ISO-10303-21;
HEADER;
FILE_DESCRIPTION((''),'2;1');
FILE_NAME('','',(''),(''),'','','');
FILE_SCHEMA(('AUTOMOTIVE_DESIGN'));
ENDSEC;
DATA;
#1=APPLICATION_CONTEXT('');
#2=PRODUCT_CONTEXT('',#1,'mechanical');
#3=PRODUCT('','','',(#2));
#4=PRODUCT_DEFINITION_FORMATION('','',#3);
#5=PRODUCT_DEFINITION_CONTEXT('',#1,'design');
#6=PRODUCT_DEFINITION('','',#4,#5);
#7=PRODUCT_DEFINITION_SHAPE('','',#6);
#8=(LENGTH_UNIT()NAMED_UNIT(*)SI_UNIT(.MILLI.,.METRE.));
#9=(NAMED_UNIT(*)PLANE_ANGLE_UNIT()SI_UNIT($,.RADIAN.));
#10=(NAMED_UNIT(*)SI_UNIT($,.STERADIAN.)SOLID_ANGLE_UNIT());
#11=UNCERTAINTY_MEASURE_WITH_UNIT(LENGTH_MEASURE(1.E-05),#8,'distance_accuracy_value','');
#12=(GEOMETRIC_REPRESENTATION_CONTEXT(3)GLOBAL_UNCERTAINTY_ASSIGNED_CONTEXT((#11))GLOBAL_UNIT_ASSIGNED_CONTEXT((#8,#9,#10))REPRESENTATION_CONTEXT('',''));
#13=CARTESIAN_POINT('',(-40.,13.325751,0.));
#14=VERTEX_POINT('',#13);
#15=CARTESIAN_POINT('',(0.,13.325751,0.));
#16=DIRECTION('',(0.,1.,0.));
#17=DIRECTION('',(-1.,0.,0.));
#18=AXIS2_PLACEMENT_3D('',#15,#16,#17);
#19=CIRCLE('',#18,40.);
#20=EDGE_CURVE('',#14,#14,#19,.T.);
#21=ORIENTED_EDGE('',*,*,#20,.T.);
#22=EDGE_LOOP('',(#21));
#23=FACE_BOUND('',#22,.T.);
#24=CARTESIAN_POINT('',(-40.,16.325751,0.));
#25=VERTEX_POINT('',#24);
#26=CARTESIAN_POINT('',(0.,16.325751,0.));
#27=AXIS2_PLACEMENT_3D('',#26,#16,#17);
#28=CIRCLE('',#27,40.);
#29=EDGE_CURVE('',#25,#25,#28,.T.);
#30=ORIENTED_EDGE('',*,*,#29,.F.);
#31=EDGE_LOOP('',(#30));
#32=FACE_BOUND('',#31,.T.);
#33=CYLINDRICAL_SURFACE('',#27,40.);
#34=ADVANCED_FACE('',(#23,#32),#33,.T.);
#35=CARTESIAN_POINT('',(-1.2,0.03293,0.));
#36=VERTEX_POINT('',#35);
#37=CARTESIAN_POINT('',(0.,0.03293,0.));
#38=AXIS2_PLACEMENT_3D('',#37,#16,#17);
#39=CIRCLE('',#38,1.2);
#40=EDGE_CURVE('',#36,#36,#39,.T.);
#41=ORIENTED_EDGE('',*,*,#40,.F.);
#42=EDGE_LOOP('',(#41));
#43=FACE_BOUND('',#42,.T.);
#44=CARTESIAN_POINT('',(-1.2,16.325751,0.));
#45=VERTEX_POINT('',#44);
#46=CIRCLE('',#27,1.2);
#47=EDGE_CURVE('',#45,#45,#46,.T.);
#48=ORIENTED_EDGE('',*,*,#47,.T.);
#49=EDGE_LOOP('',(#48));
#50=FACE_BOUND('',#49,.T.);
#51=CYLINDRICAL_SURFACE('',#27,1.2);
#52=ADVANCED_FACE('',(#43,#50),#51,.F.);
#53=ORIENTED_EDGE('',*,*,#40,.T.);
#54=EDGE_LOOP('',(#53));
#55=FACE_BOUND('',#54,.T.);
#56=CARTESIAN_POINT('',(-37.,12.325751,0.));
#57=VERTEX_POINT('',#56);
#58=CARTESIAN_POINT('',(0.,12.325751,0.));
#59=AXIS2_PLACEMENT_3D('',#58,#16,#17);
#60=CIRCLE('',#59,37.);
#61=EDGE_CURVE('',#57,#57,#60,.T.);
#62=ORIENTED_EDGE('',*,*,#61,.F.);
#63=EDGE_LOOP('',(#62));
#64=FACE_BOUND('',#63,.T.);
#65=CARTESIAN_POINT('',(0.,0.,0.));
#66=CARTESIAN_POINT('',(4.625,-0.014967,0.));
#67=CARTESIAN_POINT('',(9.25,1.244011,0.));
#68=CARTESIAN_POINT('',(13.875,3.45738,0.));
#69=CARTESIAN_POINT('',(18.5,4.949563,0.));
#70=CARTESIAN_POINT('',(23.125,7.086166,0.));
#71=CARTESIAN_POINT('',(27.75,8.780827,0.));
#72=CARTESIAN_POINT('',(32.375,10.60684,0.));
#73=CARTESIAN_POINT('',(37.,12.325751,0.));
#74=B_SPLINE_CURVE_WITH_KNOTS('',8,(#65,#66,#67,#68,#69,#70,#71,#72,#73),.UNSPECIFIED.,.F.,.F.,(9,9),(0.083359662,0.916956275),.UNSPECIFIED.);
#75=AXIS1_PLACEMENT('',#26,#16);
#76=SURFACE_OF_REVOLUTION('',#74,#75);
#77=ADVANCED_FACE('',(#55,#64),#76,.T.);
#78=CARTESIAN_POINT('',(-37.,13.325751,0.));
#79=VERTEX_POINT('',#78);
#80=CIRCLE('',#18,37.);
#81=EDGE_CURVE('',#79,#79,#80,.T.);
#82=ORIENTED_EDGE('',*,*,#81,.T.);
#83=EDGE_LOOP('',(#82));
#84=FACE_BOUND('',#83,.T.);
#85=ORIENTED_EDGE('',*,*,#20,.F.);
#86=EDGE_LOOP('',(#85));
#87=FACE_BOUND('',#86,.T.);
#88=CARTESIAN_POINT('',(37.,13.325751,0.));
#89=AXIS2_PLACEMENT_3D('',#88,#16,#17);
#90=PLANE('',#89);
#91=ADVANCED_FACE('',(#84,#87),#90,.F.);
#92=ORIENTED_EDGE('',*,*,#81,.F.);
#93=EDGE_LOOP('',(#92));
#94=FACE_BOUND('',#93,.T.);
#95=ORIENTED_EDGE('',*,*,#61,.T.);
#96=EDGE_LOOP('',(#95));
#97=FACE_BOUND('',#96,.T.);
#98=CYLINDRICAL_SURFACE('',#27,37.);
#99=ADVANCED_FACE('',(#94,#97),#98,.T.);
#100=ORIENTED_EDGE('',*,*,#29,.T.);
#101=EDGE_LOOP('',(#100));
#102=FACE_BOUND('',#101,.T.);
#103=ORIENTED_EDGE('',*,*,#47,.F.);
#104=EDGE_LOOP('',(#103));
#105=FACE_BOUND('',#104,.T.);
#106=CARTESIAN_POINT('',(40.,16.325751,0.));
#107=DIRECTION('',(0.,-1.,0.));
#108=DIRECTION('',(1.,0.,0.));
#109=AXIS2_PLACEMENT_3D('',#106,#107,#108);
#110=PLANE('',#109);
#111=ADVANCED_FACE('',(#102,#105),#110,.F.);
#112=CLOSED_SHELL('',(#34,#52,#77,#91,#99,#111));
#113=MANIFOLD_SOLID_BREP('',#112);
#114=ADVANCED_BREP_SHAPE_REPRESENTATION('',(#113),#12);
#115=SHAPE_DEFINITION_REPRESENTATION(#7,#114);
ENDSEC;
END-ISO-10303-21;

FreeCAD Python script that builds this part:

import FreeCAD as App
import Part
import Sketcher
from FreeCAD import Vector

doc = App.newDocument("Part")
params = doc.addObject("Spreadsheet::Sheet", "Params")
for row, (alias, value) in enumerate([
    ("sketch1_width", "3 mm"),
    ("sketch1_height", "5 mm"),
    ("sketch1_height2", "1 mm"),
    ("sketch1_width2", "1.2 mm"),
    ("revolution_angle", "360 deg"),
    ("sketch2_diameter", "2.4 mm"),
], start=1):
    params.set(f"A{row}", alias)
    params.set(f"B{row}", "=" + value)
    params.setAlias(f"B{row}", alias)

body = doc.addObject("PartDesign::Body", "Body")

# Sketch on XY plane
sketch1 = body.newObject("Sketcher::SketchObject", "Sketch")
sketch1.AttachmentSupport = (doc.getObject("XY_Plane"), [""])
sketch1.MapMode = "FlatFace"
sketch1.addGeometry([
    Part.LineSegment(Vector(1.2, 16.325751, 0), Vector(1.2, 11.325751, 0)),  # 0
    Part.LineSegment(Vector(1.2, 11.325751, 0), Vector(0, 11.325751, 0)),  # 1
    Part.LineSegment(Vector(0, 11.325751, 0), Vector(0, 0, 0)),  # 2
    Part.BSplineCurve([Vector(0, 0, 0), Vector(4.625, -0.014967, 0), Vector(9.25, 1.244011, 0), Vector(13.875, 3.45738, 0), Vector(18.5, 4.949563, 0), Vector(23.125, 7.086166, 0), Vector(27.75, 8.780827, 0), Vector(32.375, 10.60684, 0), Vector(37, 12.325751, 0)], [9, 9], [0.083359662, 0.916956275], False, 8, [1, 1, 1, 1, 1, 1, 1, 1, 1], False),  # 3
    Part.LineSegment(Vector(37, 12.325751, 0), Vector(37, 13.325751, 0)),  # 4
    Part.LineSegment(Vector(37, 13.325751, 0), Vector(40, 13.325751, 0)),  # 5
    Part.LineSegment(Vector(40, 13.325751, 0), Vector(40, 16.325751, 0)),  # 6
    Part.LineSegment(Vector(40, 16.325751, 0), Vector(1.2, 16.325751, 0)),  # 7
], False)
sketch1.addConstraint([
    Sketcher.Constraint("Block", 3),
    Sketcher.Constraint("Coincident", 0, 2, 1, 1),
    Sketcher.Constraint("Coincident", 1, 2, 2, 1),
    Sketcher.Constraint("Coincident", 2, 2, 3, 1),
    Sketcher.Constraint("Coincident", 3, 2, 4, 1),
    Sketcher.Constraint("Coincident", 4, 2, 5, 1),
    Sketcher.Constraint("Coincident", 5, 2, 6, 1),
    Sketcher.Constraint("Coincident", 6, 2, 7, 1),
    Sketcher.Constraint("Coincident", 7, 2, 0, 1),
    Sketcher.Constraint("Vertical", 0),
    Sketcher.Constraint("Horizontal", 1),
    Sketcher.Constraint("Vertical", 2),
    Sketcher.Constraint("Vertical", 4),
    Sketcher.Constraint("Horizontal", 5),
    Sketcher.Constraint("Vertical", 6),
    Sketcher.Constraint("Horizontal", 7),
    Sketcher.Constraint("Equal", 5, 6),
    Sketcher.Constraint("DistanceX", 5, 1, 5, 2, 3.0),
    Sketcher.Constraint("DistanceY", 0, 2, 0, 1, 5.0),
    Sketcher.Constraint("DistanceY", 4, 1, 4, 2, 1.0),
    Sketcher.Constraint("DistanceX", 1, 2, 1, 1, 1.2),
])
sketch1.setExpression("Constraints[17]", "Params.sketch1_width")
sketch1.setExpression("Constraints[18]", "Params.sketch1_height")
sketch1.setExpression("Constraints[19]", "Params.sketch1_height2")
sketch1.setExpression("Constraints[20]", "Params.sketch1_width2")
revolution = body.newObject("PartDesign::Revolution", "Revolution")
revolution.Profile = sketch1
revolution.ReferenceAxis = (sketch1, ["V_Axis"])
revolution.setExpression("Angle", "Params.revolution_angle")

# Sketch on XZ plane
sketch2 = body.newObject("Sketcher::SketchObject", "Sketch001")
sketch2.AttachmentSupport = (doc.getObject("XZ_Plane"), [""])
sketch2.MapMode = "FlatFace"
sketch2.AttachmentOffset = App.Placement(Vector(0, 0, -16.325751), App.Rotation())
sketch2.addGeometry(Part.Circle(Vector(0, 0, 0), Vector(0, 0, 1), 1.2), False)
sketch2.addConstraint([
    Sketcher.Constraint("Coincident", 0, 3, -1, 1),
    Sketcher.Constraint("Diameter", 0, 2.4),
])
sketch2.setExpression("Constraints[1]", "Params.sketch2_diameter")
pocket1 = body.newObject("PartDesign::Pocket", "Pocket")
pocket1.Profile = sketch2
pocket1.Type = "ThroughAll"
pocket1.Reversed = True

doc.recompute()
